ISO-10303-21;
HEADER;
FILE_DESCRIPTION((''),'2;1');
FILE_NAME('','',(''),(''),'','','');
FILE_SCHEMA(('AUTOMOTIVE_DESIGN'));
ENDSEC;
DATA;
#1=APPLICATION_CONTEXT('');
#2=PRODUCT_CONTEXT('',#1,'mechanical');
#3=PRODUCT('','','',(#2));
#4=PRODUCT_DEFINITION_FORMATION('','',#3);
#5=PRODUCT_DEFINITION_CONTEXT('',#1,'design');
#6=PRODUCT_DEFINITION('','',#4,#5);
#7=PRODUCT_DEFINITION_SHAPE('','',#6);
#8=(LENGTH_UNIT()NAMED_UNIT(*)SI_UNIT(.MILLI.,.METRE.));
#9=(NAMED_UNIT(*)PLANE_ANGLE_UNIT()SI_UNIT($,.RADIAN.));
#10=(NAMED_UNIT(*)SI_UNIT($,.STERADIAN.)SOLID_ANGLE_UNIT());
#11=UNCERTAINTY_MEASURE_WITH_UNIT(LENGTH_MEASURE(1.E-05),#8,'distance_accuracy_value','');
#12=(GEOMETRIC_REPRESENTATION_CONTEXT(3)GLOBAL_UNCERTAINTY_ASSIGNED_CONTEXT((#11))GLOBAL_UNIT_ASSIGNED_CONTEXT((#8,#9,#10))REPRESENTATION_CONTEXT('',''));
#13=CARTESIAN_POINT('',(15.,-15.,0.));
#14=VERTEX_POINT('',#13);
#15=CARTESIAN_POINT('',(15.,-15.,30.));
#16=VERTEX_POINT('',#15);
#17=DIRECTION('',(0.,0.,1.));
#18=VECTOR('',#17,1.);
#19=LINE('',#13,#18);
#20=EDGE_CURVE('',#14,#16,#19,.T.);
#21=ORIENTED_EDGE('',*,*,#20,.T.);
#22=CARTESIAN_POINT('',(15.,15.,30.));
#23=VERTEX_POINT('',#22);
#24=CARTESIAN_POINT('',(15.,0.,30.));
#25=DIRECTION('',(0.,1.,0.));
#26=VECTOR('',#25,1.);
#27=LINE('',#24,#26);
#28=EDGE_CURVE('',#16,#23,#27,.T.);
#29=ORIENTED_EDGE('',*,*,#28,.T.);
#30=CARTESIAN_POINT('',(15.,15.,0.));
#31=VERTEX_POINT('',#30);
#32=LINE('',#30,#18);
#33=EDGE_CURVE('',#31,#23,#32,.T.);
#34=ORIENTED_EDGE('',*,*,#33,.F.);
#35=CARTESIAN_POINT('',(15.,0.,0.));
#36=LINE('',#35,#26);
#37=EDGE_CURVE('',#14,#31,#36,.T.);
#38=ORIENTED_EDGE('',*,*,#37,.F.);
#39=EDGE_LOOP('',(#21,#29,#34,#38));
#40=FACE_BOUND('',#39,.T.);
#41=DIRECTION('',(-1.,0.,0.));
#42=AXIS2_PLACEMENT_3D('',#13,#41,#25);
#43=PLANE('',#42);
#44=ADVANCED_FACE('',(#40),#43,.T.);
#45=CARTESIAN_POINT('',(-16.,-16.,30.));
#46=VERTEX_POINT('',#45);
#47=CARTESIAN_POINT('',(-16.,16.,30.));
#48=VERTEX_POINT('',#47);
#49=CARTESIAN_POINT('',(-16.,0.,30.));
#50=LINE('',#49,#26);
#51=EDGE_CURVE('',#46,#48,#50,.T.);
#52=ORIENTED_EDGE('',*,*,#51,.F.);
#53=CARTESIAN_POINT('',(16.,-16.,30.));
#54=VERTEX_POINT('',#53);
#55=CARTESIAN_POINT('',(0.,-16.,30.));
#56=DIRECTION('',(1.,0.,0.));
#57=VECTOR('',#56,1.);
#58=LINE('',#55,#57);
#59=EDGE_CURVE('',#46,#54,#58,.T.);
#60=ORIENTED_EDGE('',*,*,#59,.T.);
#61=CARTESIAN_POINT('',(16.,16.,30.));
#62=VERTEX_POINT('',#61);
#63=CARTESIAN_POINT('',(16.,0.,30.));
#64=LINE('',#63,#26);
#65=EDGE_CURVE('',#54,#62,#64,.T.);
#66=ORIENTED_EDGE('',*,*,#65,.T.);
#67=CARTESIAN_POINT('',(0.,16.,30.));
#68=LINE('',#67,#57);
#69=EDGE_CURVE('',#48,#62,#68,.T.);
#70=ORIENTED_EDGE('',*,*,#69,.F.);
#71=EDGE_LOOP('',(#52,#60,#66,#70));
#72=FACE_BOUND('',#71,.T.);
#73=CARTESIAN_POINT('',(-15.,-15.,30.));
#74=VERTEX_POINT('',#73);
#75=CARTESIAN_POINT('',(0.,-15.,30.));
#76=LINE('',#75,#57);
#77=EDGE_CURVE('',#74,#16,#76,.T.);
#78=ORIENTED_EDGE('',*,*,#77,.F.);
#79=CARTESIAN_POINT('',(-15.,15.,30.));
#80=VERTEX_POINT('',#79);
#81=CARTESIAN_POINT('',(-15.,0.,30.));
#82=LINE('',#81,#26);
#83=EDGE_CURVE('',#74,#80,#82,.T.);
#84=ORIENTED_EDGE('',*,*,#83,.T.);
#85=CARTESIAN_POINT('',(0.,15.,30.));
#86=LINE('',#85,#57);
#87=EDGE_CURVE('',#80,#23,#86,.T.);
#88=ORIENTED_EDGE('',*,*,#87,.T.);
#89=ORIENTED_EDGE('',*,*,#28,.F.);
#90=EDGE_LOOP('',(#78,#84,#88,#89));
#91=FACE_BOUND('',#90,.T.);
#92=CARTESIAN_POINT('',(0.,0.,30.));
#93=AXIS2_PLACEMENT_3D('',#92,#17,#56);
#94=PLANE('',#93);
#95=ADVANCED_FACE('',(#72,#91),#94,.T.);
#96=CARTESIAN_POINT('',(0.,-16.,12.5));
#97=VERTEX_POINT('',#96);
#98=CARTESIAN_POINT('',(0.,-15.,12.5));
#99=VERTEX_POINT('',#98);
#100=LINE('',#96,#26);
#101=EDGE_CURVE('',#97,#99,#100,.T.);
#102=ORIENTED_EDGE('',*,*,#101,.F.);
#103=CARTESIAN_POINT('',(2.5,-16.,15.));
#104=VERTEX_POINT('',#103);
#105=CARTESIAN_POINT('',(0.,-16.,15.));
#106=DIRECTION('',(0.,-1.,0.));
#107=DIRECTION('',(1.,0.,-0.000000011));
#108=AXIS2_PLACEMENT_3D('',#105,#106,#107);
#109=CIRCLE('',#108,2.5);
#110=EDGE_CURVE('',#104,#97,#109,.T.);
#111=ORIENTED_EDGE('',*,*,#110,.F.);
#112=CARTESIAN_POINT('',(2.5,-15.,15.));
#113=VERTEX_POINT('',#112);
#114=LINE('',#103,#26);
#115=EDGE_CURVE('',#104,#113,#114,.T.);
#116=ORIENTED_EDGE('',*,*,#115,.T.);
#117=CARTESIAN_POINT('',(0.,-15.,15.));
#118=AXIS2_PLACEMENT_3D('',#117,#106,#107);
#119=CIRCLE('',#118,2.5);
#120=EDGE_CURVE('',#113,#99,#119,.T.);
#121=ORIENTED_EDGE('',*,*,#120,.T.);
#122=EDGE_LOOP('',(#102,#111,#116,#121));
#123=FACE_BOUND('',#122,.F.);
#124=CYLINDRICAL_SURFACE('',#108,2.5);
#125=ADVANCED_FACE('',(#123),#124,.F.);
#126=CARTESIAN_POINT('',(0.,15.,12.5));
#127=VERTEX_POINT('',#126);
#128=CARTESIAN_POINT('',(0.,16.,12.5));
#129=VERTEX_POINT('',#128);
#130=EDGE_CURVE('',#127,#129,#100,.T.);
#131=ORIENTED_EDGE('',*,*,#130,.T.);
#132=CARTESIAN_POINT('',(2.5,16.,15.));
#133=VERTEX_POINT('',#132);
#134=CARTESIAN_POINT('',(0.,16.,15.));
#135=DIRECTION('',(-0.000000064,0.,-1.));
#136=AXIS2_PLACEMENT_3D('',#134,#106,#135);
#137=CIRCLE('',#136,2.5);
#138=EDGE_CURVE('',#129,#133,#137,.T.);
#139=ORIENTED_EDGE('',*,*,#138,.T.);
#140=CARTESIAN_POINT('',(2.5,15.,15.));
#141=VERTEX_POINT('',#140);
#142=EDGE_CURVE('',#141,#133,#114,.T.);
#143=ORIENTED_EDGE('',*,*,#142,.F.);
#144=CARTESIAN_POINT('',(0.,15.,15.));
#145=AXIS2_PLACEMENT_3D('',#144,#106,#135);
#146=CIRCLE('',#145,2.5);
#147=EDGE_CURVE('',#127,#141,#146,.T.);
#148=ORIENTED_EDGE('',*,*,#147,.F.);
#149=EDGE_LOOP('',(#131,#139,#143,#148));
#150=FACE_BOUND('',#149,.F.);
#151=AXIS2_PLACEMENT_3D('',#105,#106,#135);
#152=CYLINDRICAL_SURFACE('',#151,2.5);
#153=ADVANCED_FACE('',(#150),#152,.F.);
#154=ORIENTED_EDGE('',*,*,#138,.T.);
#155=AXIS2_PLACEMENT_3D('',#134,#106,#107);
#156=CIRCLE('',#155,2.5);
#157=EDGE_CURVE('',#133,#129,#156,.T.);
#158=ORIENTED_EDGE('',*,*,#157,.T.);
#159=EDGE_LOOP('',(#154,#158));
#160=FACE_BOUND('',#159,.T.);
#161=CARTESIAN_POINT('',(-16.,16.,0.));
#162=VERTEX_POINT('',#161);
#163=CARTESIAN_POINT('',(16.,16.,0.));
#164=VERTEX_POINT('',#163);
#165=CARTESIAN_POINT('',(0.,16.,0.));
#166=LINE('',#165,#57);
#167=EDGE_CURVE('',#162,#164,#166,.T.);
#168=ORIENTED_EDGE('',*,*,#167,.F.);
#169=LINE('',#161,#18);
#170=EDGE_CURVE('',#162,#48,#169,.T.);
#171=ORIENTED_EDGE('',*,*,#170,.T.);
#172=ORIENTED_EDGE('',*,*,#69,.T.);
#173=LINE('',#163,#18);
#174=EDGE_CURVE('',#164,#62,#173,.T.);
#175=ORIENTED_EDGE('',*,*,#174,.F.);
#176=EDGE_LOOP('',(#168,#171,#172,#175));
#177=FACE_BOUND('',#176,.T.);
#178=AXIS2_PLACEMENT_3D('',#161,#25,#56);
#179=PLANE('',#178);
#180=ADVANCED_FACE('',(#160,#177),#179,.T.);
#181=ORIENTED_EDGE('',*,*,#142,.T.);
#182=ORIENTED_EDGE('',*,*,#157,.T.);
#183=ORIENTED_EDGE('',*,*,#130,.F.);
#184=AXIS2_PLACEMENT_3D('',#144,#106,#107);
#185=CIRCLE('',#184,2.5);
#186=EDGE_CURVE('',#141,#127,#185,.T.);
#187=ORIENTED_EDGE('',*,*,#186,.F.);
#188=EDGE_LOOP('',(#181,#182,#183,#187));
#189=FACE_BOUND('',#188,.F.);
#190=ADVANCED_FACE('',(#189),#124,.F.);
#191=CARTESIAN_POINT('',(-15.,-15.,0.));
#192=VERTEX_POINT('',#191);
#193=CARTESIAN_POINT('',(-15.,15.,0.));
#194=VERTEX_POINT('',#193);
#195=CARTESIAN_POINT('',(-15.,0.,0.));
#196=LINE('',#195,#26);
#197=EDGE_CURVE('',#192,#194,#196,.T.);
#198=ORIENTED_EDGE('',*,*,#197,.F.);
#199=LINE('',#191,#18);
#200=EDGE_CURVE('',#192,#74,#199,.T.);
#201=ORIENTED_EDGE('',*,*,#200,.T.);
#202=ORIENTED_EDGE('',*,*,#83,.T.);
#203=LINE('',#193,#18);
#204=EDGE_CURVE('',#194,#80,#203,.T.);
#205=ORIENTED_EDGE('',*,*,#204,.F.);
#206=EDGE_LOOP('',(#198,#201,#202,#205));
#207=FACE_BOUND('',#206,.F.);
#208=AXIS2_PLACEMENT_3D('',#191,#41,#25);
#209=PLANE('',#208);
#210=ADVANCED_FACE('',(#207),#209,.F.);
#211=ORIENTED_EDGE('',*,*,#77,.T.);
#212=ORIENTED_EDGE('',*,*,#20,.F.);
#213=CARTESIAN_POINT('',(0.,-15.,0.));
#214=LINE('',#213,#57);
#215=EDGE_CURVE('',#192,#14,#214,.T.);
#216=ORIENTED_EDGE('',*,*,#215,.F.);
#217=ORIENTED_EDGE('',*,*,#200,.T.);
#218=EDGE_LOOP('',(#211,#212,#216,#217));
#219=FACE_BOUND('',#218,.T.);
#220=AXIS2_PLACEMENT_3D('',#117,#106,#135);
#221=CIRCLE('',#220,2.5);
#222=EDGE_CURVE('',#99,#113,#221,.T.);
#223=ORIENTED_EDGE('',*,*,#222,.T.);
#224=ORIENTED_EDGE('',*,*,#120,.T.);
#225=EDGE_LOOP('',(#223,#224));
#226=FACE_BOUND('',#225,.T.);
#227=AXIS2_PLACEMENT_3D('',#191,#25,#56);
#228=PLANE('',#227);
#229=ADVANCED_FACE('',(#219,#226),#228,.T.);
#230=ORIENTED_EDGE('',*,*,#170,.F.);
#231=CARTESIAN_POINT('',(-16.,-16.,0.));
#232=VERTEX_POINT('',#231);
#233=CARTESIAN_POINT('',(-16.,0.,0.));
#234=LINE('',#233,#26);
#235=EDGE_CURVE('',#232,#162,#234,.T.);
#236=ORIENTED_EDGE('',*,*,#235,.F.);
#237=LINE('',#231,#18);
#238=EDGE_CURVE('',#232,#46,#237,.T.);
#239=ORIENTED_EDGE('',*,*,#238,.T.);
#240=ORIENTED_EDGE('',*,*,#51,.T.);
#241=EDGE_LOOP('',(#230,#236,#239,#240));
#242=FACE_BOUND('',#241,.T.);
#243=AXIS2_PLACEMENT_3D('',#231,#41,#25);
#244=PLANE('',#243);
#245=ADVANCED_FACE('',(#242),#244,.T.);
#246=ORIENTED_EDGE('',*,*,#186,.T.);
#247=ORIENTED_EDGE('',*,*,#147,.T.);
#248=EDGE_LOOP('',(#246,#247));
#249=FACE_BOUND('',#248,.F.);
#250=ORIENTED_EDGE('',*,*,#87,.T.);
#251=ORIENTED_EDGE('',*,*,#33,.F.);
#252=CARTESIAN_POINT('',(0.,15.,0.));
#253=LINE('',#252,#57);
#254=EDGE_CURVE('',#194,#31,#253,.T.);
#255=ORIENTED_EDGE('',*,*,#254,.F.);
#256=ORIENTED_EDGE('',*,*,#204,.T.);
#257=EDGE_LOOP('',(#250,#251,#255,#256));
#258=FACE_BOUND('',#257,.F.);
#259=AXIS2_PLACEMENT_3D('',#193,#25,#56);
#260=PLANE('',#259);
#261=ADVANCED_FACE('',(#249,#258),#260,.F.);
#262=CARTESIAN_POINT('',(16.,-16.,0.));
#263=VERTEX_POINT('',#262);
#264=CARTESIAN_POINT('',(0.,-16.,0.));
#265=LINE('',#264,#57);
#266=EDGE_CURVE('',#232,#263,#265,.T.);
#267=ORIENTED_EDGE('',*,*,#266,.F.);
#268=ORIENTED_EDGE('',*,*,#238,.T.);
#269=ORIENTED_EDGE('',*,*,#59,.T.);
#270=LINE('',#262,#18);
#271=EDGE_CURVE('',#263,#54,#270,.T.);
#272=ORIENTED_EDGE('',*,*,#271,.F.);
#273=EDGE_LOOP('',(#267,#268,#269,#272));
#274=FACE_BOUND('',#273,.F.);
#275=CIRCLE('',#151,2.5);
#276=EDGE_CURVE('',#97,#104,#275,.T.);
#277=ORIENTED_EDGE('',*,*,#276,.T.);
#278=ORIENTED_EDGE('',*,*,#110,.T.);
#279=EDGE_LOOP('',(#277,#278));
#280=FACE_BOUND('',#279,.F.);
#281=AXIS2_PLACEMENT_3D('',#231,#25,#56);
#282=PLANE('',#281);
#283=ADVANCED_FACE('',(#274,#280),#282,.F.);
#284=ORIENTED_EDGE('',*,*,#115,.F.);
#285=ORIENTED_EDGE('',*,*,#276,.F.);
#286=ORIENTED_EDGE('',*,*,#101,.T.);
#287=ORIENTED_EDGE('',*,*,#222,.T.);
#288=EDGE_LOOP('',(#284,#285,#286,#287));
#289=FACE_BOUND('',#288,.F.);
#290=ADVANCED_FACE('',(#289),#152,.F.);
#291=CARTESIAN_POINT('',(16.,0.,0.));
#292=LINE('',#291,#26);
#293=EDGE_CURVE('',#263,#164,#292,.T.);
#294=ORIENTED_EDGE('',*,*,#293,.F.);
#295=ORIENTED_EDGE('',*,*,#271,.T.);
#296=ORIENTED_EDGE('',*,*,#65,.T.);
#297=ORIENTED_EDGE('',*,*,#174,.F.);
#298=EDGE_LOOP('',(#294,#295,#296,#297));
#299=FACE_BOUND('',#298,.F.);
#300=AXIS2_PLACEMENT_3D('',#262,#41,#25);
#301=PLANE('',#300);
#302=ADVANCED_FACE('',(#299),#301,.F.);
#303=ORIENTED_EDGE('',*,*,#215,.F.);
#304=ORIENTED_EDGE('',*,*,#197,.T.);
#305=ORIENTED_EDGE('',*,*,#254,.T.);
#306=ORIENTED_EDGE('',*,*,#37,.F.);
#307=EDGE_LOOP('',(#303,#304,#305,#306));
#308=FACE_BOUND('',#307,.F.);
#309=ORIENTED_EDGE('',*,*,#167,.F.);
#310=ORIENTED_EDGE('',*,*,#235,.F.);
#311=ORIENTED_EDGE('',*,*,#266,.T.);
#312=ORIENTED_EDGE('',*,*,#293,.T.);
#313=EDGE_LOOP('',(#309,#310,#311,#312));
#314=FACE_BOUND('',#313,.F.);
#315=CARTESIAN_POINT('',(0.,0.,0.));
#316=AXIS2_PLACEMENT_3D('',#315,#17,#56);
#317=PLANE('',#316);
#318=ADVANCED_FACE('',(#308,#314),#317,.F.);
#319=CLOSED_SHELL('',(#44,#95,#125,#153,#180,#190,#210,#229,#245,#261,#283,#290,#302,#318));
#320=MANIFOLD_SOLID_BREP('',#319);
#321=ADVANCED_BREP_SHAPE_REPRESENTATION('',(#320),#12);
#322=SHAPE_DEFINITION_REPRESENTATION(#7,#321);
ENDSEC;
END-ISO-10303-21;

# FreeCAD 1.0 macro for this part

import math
import FreeCAD as App
import Part
import Sketcher
Q = App.Units.Quantity


def add_polygon(sketch, points):
    """Adds a closed chain of lines whose ends are joined by coincident constraints."""
    first, n = sketch.GeometryCount, len(points)
    for a, b in zip(points, points[1:] + points[:1]):
        sketch.addGeometry(Part.LineSegment(App.Vector(*a, 0), App.Vector(*b, 0)), False)
    for i in range(n):
        sketch.addConstraint(Sketcher.Constraint("Coincident", first + i, 2, first + (i + 1) % n, 1))

doc = App.newDocument("Part")
params = doc.addObject("Spreadsheet::Sheet", "Params")
for row, (alias, value) in enumerate([
    ("sketch1_width", "32 mm"),
    ("sketch1_width2", "30 mm"),
    ("pad1_length", "30 mm"),
    ("sketch2_radius", "2.5 mm"),
    ("pocket1_length", "50 mm"),
], start=1):
    params.set(f"A{row}", alias)
    params.set(f"B{row}", "=" + value)
    params.setAlias(f"B{row}", alias)

body = doc.addObject("PartDesign::Body", "Body")

# Sketch on XY plane
sketch1 = body.newObject("Sketcher::SketchObject", "Sketch")
sketch1.AttachmentSupport = (doc.getObject("XY_Plane"), [""])
sketch1.MapMode = "FlatFace"
add_polygon(sketch1, [(-16, 16), (-16, -16), (16, -16), (16, 16)])  # lines 0-3
add_polygon(sketch1, [(15, -15), (-15, -15), (-15, 15), (15, 15)])  # lines 4-7
sketch1.addConstraint([
    Sketcher.Constraint("Vertical", 0),
    Sketcher.Constraint("Horizontal", 1),
    Sketcher.Constraint("Vertical", 2),
    Sketcher.Constraint("Horizontal", 3),
    Sketcher.Constraint("Horizontal", 4),
    Sketcher.Constraint("Vertical", 5),
    Sketcher.Constraint("Horizontal", 6),
    Sketcher.Constraint("Vertical", 7),
    Sketcher.Constraint("Symmetric", 0, 2, 2, 2, -1, 1),
    Sketcher.Constraint("Symmetric", 4, 2, 6, 2, -1, 1),
    Sketcher.Constraint("Equal", 3, 0),
    Sketcher.Constraint("Equal", 6, 5),
    Sketcher.Constraint("DistanceX", 1, 1, 1, 2, Q("32 mm")),
    Sketcher.Constraint("DistanceX", 4, 2, 4, 1, Q("30 mm")),
])
sketch1.setExpression("Constraints[20]", "Params.sketch1_width")
sketch1.setExpression("Constraints[21]", "Params.sketch1_width2")
pad1 = body.newObject("PartDesign::Pad", "Pad")
pad1.Profile = sketch1
pad1.setExpression("Length", "Params.pad1_length")

# Sketch on XZ plane
sketch2 = body.newObject("Sketcher::SketchObject", "Sketch001")
sketch2.AttachmentSupport = (doc.getObject("XZ_Plane"), [""])
sketch2.MapMode = "FlatFace"
sketch2.AttachmentOffset = App.Placement(App.Vector(0, 0, 16), App.Rotation())
sketch2.addGeometry([
    Part.ArcOfCircle(Part.Circle(App.Vector(0, 15, 0), App.Vector(0, 0, 1), 2.5), math.radians(-90), math.radians(0)),
    Part.ArcOfCircle(Part.Circle(App.Vector(0, 15, 0), App.Vector(0, 0, 1), 2.5), math.radians(0), math.radians(270)),
], False)
sketch2.addConstraint([
    Sketcher.Constraint("Tangent", 0, 1, 1, 2),
    Sketcher.Constraint("Coincident", 1, 1, 0, 2),
    Sketcher.Constraint("PointOnObject", 0, 3, -2),
    Sketcher.Constraint("PointOnObject", 0, 1, -2),
    Sketcher.Constraint("Horizontal", 0, 3, 1, 1),
    Sketcher.Constraint("Radius", 0, Q("2.5 mm")),
    Sketcher.Constraint("DistanceY", -1, 1, 0, 3, Q("15 mm")),
])
sketch2.setExpression("Constraints[5]", "Params.sketch2_radius")
pocket1 = body.newObject("PartDesign::Pocket", "Pocket")
pocket1.Profile = sketch2
pocket1.setExpression("Length", "Params.pocket1_length")

doc.recompute()
